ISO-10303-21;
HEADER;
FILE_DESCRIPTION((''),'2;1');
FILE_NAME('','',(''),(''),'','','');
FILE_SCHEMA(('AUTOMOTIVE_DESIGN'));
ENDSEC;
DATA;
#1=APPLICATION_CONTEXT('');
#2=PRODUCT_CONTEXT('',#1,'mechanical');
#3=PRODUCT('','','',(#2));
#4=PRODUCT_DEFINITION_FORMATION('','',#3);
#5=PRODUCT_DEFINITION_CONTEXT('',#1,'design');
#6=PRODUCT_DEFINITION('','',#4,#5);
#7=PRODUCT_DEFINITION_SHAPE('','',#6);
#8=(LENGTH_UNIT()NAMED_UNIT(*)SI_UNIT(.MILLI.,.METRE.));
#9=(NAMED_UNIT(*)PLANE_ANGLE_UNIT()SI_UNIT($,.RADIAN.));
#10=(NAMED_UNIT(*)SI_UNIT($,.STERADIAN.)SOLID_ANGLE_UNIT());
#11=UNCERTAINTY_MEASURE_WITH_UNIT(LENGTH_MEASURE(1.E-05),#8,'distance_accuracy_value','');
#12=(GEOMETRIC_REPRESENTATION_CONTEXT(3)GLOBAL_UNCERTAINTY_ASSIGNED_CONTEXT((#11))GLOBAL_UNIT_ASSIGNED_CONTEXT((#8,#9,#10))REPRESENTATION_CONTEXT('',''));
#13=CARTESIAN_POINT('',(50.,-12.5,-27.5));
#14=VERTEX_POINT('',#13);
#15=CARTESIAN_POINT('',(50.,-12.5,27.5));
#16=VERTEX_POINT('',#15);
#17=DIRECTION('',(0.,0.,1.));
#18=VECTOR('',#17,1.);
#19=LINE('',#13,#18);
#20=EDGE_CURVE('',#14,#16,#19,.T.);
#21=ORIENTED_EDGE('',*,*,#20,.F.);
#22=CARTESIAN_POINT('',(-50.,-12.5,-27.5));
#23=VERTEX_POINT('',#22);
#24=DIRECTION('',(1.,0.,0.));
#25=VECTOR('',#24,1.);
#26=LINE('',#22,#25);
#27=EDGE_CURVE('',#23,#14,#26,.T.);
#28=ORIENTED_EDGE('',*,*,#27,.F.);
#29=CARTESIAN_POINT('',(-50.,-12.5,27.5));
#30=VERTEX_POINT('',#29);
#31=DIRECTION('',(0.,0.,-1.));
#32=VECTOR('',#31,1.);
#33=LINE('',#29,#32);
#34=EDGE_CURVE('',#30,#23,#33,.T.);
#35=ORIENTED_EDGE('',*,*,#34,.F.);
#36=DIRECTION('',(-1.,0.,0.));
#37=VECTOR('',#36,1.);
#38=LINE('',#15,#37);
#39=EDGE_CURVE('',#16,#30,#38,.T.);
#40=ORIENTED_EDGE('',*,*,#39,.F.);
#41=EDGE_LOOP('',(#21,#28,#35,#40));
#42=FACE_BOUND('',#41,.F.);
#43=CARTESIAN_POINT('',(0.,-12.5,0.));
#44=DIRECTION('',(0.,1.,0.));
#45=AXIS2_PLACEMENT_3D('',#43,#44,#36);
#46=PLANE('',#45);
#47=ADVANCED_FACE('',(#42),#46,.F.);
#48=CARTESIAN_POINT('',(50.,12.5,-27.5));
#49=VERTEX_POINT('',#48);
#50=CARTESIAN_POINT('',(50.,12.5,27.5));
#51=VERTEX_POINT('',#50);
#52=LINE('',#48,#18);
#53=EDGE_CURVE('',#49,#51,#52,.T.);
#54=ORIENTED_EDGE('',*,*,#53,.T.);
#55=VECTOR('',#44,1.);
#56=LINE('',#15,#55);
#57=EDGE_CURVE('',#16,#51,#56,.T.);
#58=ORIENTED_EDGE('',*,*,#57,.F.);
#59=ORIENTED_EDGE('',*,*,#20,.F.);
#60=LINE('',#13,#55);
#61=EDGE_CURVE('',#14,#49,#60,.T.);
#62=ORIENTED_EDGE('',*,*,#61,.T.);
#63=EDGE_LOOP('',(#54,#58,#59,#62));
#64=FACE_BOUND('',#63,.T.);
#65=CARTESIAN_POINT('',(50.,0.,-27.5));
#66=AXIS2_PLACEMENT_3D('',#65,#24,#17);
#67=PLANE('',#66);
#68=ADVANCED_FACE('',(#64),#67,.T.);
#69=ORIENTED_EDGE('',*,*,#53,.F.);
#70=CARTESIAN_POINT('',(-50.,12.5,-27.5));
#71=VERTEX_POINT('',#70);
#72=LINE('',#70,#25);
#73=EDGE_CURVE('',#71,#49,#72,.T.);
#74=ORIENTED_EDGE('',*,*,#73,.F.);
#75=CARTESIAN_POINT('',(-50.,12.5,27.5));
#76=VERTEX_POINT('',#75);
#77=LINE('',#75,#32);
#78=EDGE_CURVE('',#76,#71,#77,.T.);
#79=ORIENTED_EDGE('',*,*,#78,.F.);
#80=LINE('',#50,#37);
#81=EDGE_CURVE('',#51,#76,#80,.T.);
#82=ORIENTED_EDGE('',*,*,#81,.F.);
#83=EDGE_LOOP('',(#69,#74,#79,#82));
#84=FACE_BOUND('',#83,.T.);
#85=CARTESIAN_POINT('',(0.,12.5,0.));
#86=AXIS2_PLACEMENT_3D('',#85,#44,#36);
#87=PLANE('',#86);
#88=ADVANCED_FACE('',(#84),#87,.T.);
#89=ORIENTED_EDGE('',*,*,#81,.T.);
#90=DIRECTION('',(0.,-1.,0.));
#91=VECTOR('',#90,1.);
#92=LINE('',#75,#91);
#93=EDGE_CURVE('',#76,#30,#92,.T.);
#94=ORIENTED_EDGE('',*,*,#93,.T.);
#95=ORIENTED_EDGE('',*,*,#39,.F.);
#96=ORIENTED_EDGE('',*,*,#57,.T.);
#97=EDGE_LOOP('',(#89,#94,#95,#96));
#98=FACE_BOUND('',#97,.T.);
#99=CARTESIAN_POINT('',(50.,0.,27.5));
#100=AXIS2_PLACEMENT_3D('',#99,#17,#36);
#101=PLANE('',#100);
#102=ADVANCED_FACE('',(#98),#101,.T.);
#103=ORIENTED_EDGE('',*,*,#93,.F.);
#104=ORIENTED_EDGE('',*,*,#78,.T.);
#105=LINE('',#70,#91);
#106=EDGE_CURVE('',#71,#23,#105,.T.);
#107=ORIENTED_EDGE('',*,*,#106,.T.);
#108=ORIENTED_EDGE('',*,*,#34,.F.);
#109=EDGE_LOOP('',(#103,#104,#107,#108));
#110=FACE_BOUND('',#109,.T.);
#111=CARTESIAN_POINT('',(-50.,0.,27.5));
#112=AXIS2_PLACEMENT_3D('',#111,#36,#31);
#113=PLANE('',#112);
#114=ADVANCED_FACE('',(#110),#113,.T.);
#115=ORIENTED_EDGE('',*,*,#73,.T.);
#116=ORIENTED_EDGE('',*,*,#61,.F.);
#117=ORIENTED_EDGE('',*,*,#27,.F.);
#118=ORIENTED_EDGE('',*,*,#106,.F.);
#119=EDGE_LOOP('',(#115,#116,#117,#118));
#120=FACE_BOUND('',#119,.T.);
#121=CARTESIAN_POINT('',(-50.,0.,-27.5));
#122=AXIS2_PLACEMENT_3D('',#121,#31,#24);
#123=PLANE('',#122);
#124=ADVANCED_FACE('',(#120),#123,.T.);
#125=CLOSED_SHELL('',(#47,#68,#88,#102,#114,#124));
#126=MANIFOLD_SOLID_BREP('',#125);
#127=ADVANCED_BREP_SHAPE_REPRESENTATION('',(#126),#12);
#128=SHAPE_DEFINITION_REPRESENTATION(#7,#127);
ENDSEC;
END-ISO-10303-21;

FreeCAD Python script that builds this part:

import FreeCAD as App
import Part
import Sketcher
from FreeCAD import Vector

doc = App.newDocument("Part")
body = doc.addObject("PartDesign::Body", "Body")

# Sketch on XZ plane
sketch1 = doc.addObject("Sketcher::SketchObject", "Sketch")
body.addObject(sketch1)
sketch1.AttachmentSupport = (doc.XZ_Plane, [""])
sketch1.MapMode = "FlatFace"
sketch1.addGeometry([
    Part.LineSegment(Vector(-50, 28, 0), Vector(50, 28, 0)),
    Part.LineSegment(Vector(50, 28, 0), Vector(50, -28, 0)),
    Part.LineSegment(Vector(50, -28, 0), Vector(-50, -28, 0)),
    Part.LineSegment(Vector(-50, -28, 0), Vector(-50, 28, 0)),
], False)
sketch1.addConstraint([
    Sketcher.Constraint("Coincident", 0, 2, 1, 1),
    Sketcher.Constraint("Coincident", 1, 2, 2, 1),
    Sketcher.Constraint("Coincident", 2, 2, 3, 1),
    Sketcher.Constraint("Coincident", 3, 2, 0, 1),
    Sketcher.Constraint("Horizontal", 0),
    Sketcher.Constraint("Vertical", 1),
    Sketcher.Constraint("Horizontal", 2),
    Sketcher.Constraint("Vertical", 3),
    Sketcher.Constraint("Symmetric", 0, 2, 2, 2, -1, 1),
    Sketcher.Constraint("DistanceX", 0, 1, 0, 2, 100.0),
    Sketcher.Constraint("DistanceY", 1, 2, 1, 1, 55.0),
])
pad1 = doc.addObject("PartDesign::Pad", "Pad")
body.addObject(pad1)
pad1.Profile = sketch1
pad1.Length = 25
pad1.Midplane = True

doc.recompute()
